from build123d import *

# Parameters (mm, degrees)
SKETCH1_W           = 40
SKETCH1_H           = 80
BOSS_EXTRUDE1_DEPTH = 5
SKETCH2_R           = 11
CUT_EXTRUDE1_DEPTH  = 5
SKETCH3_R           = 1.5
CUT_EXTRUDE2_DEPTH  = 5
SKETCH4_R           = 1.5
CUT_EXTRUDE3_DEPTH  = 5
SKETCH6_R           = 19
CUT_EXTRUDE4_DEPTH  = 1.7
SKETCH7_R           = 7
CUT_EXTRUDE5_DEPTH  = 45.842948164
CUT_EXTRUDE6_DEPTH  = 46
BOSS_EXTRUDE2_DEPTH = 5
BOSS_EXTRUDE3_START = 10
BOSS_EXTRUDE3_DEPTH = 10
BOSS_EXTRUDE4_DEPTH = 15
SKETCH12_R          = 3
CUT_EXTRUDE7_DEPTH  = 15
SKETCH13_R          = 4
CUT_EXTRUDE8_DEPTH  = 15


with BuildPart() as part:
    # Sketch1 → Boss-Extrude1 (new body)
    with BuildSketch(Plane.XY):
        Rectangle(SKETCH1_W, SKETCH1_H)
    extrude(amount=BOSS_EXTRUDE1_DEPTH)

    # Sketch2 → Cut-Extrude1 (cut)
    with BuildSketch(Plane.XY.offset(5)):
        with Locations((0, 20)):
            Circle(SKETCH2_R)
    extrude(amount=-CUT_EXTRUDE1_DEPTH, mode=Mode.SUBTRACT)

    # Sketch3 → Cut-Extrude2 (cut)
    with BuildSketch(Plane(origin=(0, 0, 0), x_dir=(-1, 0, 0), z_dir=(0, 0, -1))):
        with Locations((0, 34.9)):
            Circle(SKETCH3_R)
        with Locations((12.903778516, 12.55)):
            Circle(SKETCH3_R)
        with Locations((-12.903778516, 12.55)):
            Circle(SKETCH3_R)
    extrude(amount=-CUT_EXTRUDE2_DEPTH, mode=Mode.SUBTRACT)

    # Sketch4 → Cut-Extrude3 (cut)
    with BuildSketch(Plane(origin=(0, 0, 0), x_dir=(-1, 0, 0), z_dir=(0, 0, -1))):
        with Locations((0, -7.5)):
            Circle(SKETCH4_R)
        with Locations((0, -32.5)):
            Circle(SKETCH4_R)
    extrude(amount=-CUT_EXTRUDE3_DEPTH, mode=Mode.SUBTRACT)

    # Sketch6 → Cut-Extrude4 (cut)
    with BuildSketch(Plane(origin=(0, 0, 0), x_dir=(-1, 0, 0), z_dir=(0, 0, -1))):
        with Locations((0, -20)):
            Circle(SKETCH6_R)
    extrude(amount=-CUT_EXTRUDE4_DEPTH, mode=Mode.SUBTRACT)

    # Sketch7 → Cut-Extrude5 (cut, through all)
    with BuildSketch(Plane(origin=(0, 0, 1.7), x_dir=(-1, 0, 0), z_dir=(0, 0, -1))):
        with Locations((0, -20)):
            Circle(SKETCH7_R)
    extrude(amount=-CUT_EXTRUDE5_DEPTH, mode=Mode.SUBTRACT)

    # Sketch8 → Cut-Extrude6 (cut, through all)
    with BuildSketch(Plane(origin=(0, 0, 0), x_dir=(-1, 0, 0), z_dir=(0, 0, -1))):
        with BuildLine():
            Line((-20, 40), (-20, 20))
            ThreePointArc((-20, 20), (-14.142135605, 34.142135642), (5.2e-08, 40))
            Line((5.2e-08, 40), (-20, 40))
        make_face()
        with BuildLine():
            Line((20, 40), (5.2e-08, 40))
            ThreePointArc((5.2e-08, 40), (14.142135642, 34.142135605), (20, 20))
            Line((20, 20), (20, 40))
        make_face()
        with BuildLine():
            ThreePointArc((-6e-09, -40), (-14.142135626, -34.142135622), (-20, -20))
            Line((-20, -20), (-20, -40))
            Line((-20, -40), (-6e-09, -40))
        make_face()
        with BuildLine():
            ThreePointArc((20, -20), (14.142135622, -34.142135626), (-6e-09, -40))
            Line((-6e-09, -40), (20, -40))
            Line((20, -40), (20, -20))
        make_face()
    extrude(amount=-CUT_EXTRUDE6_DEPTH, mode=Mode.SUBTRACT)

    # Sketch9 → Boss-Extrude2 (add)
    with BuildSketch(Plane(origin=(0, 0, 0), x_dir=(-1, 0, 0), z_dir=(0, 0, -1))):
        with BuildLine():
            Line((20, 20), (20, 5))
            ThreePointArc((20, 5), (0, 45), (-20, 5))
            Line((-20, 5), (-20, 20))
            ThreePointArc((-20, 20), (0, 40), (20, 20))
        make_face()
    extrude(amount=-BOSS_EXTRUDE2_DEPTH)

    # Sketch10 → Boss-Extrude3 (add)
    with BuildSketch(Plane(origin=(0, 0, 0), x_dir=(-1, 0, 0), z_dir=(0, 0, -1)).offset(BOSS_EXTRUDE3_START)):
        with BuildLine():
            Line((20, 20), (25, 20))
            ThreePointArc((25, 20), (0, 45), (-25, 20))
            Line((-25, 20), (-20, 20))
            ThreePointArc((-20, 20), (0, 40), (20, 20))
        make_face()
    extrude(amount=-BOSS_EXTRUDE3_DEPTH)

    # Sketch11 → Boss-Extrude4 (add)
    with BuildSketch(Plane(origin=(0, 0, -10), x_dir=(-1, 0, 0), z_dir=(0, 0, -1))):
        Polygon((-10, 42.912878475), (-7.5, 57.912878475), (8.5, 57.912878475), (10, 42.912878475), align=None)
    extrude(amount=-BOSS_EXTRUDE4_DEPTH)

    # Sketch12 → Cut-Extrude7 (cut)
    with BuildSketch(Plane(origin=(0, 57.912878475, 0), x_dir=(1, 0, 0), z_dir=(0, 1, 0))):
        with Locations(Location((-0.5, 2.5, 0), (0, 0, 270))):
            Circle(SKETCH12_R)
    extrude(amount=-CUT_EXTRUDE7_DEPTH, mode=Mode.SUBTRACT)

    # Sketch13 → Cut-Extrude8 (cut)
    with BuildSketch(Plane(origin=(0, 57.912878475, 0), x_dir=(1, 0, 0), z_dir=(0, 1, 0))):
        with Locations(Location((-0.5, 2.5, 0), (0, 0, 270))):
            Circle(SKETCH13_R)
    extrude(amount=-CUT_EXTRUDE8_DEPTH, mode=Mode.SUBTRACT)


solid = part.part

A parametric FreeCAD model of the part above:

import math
import FreeCAD as App
import Part
import Sketcher
Q = App.Units.Quantity

doc = App.newDocument("Part")
params = doc.addObject("Spreadsheet::Sheet", "Params")
for row, (alias, value) in enumerate([
    ("sketch1_width", "40 mm"),
    ("sketch1_height", "80 mm"),
    ("pad1_length", "5 mm"),
    ("sketch2_diameter", "22 mm"),
    ("pocket1_length", "5 mm"),
    ("sketch3_diameter", "3 mm"),
    ("pocket2_length", "5 mm"),
    ("sketch4_diameter", "3 mm"),
    ("pocket3_length", "5 mm"),
    ("sketch5_diameter", "38 mm"),
    ("pocket4_length", "1.7 mm"),
    ("sketch6_diameter", "14 mm"),
    ("sketch7_radius", "20 mm"),
    ("sketch8_radius", "25 mm"),
    ("sketch8_radius2", "20 mm"),
    ("pad2_length", "5 mm"),
    ("sketch9_radius", "25 mm"),
    ("sketch9_radius2", "20 mm"),
    ("pad3_length", "10 mm"),
    ("sketch10_width", "20 mm"),
    ("sketch10_width2", "16 mm"),
    ("pad4_length", "15 mm"),
    ("sketch11_diameter", "6 mm"),
    ("pocket7_length", "15 mm"),
    ("sketch12_diameter", "8 mm"),
    ("pocket8_length", "15 mm"),
], start=1):
    params.set(f"A{row}", alias)
    params.set(f"B{row}", "=" + value)
    params.setAlias(f"B{row}", alias)

body = doc.addObject("PartDesign::Body", "Body")

# Sketch on XY plane
sketch1 = body.newObject("Sketcher::SketchObject", "Sketch")
sketch1.AttachmentSupport = (doc.getObject("XY_Plane"), [""])
sketch1.MapMode = "FlatFace"
sketch1.addGeometry([
    Part.LineSegment(App.Vector(-20, 40, 0), App.Vector(-20, -40, 0)),
    Part.LineSegment(App.Vector(-20, -40, 0), App.Vector(20, -40, 0)),
    Part.LineSegment(App.Vector(20, -40, 0), App.Vector(20, 40, 0)),
    Part.LineSegment(App.Vector(20, 40, 0), App.Vector(-20, 40, 0)),
], False)
sketch1.addConstraint([
    Sketcher.Constraint("Coincident", 0, 2, 1, 1),
    Sketcher.Constraint("Coincident", 1, 2, 2, 1),
    Sketcher.Constraint("Coincident", 2, 2, 3, 1),
    Sketcher.Constraint("Coincident", 3, 2, 0, 1),
    Sketcher.Constraint("Vertical", 0),
    Sketcher.Constraint("Horizontal", 1),
    Sketcher.Constraint("Vertical", 2),
    Sketcher.Constraint("Horizontal", 3),
    Sketcher.Constraint("Symmetric", 0, 2, 2, 2, -1, 1),
    Sketcher.Constraint("DistanceX", 1, 1, 1, 2, Q("40 mm")),
    Sketcher.Constraint("DistanceY", 0, 2, 0, 1, Q("80 mm")),
])
sketch1.setExpression("Constraints[9]", "Params.sketch1_width")
sketch1.setExpression("Constraints[10]", "Params.sketch1_height")
pad1 = body.newObject("PartDesign::Pad", "Pad")
pad1.Profile = sketch1
pad1.setExpression("Length", "Params.pad1_length")

# Sketch on XY plane
sketch2 = body.newObject("Sketcher::SketchObject", "Sketch001")
sketch2.AttachmentSupport = (doc.getObject("XY_Plane"), [""])
sketch2.MapMode = "FlatFace"
sketch2.AttachmentOffset = App.Placement(App.Vector(0, 0, 5), App.Rotation())
sketch2.addGeometry(Part.Circle(App.Vector(0, 20, 0), App.Vector(0, 0, 1), 11), False)
sketch2.addConstraint([
    Sketcher.Constraint("PointOnObject", 0, 3, -2),
    Sketcher.Constraint("Diameter", 0, Q("22 mm")),
    Sketcher.Constraint("DistanceY", -1, 1, 0, 3, Q("20 mm")),
])
sketch2.setExpression("Constraints[1]", "Params.sketch2_diameter")
pocket1 = body.newObject("PartDesign::Pocket", "Pocket")
pocket1.Profile = sketch2
pocket1.setExpression("Length", "Params.pocket1_length")

# Sketch on XY plane
sketch3 = body.newObject("Sketcher::SketchObject", "Sketch002")
sketch3.AttachmentSupport = (doc.getObject("XY_Plane"), [""])
sketch3.MapMode = "FlatFace"
sketch3.addGeometry([
    Part.Circle(App.Vector(0, 34.9, 0), App.Vector(0, 0, 1), 1.5),
    Part.Circle(App.Vector(-12.9, 12.6, 0), App.Vector(0, 0, 1), 1.5),
    Part.Circle(App.Vector(12.9, 12.6, 0), App.Vector(0, 0, 1), 1.5),
], False)
sketch3.addConstraint([
    Sketcher.Constraint("Equal", 0, 1),
    Sketcher.Constraint("Equal", 1, 2),
    Sketcher.Constraint("Symmetric", 1, 3, 2, 3, -2),
    Sketcher.Constraint("PointOnObject", 0, 3, -2),
    Sketcher.Constraint("Diameter", 0, Q("3 mm")),
    Sketcher.Constraint("DistanceY", -1, 1, 0, 3, Q("34.9 mm")),
    Sketcher.Constraint("DistanceY", -1, 1, 1, 3, Q("12.55 mm")),
    Sketcher.Constraint("DistanceX", 1, 3, -1, 1, Q("12.903779 mm")),
])
sketch3.setExpression("Constraints[4]", "Params.sketch3_diameter")
pocket2 = body.newObject("PartDesign::Pocket", "Pocket001")
pocket2.Profile = sketch3
pocket2.setExpression("Length", "Params.pocket2_length")
pocket2.Reversed = True

# Sketch on XY plane
sketch4 = body.newObject("Sketcher::SketchObject", "Sketch003")
sketch4.AttachmentSupport = (doc.getObject("XY_Plane"), [""])
sketch4.MapMode = "FlatFace"
sketch4.addGeometry([
    Part.Circle(App.Vector(0, -7.5, 0), App.Vector(0, 0, 1), 1.5),
    Part.Circle(App.Vector(0, -32.5, 0), App.Vector(0, 0, 1), 1.5),
], False)
sketch4.addConstraint([
    Sketcher.Constraint("Equal", 0, 1),
    Sketcher.Constraint("PointOnObject", 0, 3, -2),
    Sketcher.Constraint("PointOnObject", 1, 3, -2),
    Sketcher.Constraint("Diameter", 0, Q("3 mm")),
    Sketcher.Constraint("DistanceY", 1, 3, 0, 3, Q("25 mm")),
    Sketcher.Constraint("DistanceY", 0, 3, -1, 1, Q("7.5 mm")),
])
sketch4.setExpression("Constraints[3]", "Params.sketch4_diameter")
pocket3 = body.newObject("PartDesign::Pocket", "Pocket002")
pocket3.Profile = sketch4
pocket3.setExpression("Length", "Params.pocket3_length")
pocket3.Reversed = True

# Sketch on XY plane
sketch5 = body.newObject("Sketcher::SketchObject", "Sketch004")
sketch5.AttachmentSupport = (doc.getObject("XY_Plane"), [""])
sketch5.MapMode = "FlatFace"
sketch5.addGeometry(Part.Circle(App.Vector(0, -20, 0), App.Vector(0, 0, 1), 19), False)
sketch5.addConstraint([
    Sketcher.Constraint("PointOnObject", 0, 3, -2),
    Sketcher.Constraint("Diameter", 0, Q("38 mm")),
    Sketcher.Constraint("DistanceY", 0, 3, -1, 1, Q("20 mm")),
])
sketch5.setExpression("Constraints[1]", "Params.sketch5_diameter")
pocket4 = body.newObject("PartDesign::Pocket", "Pocket003")
pocket4.Profile = sketch5
pocket4.setExpression("Length", "Params.pocket4_length")
pocket4.Reversed = True

# Sketch on XY plane
sketch6 = body.newObject("Sketcher::SketchObject", "Sketch005")
sketch6.AttachmentSupport = (doc.getObject("XY_Plane"), [""])
sketch6.MapMode = "FlatFace"
sketch6.AttachmentOffset = App.Placement(App.Vector(0, 0, 1.7), App.Rotation())
sketch6.addGeometry(Part.Circle(App.Vector(0, -20, 0), App.Vector(0, 0, 1), 7), False)
sketch6.addConstraint([
    Sketcher.Constraint("PointOnObject", 0, 3, -2),
    Sketcher.Constraint("Diameter", 0, Q("14 mm")),
    Sketcher.Constraint("DistanceY", 0, 3, -1, 1, Q("20 mm")),
])
sketch6.setExpression("Constraints[1]", "Params.sketch6_diameter")
pocket5 = body.newObject("PartDesign::Pocket", "Pocket004")
pocket5.Profile = sketch6
pocket5.Type = "ThroughAll"
pocket5.Reversed = True

# Sketch on XY plane
sketch7 = body.newObject("Sketcher::SketchObject", "Sketch006")
sketch7.AttachmentSupport = (doc.getObject("XY_Plane"), [""])
sketch7.MapMode = "FlatFace"
sketch7.addGeometry([
    Part.LineSegment(App.Vector(20, 40, 0), App.Vector(20, 20, 0)),  # 0
    Part.ArcOfCircle(Part.Circle(App.Vector(0, 20, 0), App.Vector(0, 0, 1), 20), math.radians(0), math.radians(90)),  # 1
    Part.LineSegment(App.Vector(0, 40, 0), App.Vector(20, 40, 0)),  # 2
    Part.LineSegment(App.Vector(-20, 40, 0), App.Vector(0, 40, 0)),  # 3
    Part.ArcOfCircle(Part.Circle(App.Vector(0, 20, 0), App.Vector(0, 0, 1), 20), math.radians(90), math.radians(180)),  # 4
    Part.LineSegment(App.Vector(-20, 20, 0), App.Vector(-20, 40, 0)),  # 5
    Part.ArcOfCircle(Part.Circle(App.Vector(0, -20, 0), App.Vector(0, 0, 1), 20), math.radians(-90), math.radians(0)),  # 6
    Part.LineSegment(App.Vector(20, -20, 0), App.Vector(20, -40, 0)),  # 7
    Part.LineSegment(App.Vector(20, -40, 0), App.Vector(0, -40, 0)),  # 8
    Part.ArcOfCircle(Part.Circle(App.Vector(0, -20, 0), App.Vector(0, 0, 1), 20), math.radians(180), math.radians(270)),  # 9
    Part.LineSegment(App.Vector(0, -40, 0), App.Vector(-20, -40, 0)),  # 10
    Part.LineSegment(App.Vector(-20, -40, 0), App.Vector(-20, -20, 0)),  # 11
], False)
sketch7.addConstraint([
    Sketcher.Constraint("Tangent", 0, 2, 1, 1),
    Sketcher.Constraint("Tangent", 1, 2, 2, 1),
    Sketcher.Constraint("Coincident", 2, 2, 0, 1),
    Sketcher.Constraint("Tangent", 3, 2, 4, 1),
    Sketcher.Constraint("Tangent", 4, 2, 5, 1),
    Sketcher.Constraint("Coincident", 5, 2, 3, 1),
    Sketcher.Constraint("Tangent", 6, 2, 7, 1),
    Sketcher.Constraint("Coincident", 7, 2, 8, 1),
    Sketcher.Constraint("Tangent", 8, 2, 6, 1),
    Sketcher.Constraint("Tangent", 9, 2, 10, 1),
    Sketcher.Constraint("Coincident", 10, 2, 11, 1),
    Sketcher.Constraint("Tangent", 11, 2, 9, 1),
    Sketcher.Constraint("Vertical", 0),
    Sketcher.Constraint("Horizontal", 2),
    Sketcher.Constraint("Horizontal", 3),
    Sketcher.Constraint("Vertical", 5),
    Sketcher.Constraint("Vertical", 7),
    Sketcher.Constraint("Horizontal", 8),
    Sketcher.Constraint("Horizontal", 10),
    Sketcher.Constraint("Vertical", 11),
    Sketcher.Constraint("Coincident", 4, 3, 1, 3),
    Sketcher.Constraint("Coincident", 9, 3, 6, 3),
    Sketcher.Constraint("Equal", 1, 4),
    Sketcher.Constraint("Equal", 4, 6),
    Sketcher.Constraint("Equal", 6, 9),
    Sketcher.Constraint("Symmetric", 1, 3, 6, 3, -1, 1),
    Sketcher.Constraint("PointOnObject", 1, 3, -2),
    Sketcher.Constraint("Radius", 1, Q("20 mm")),
    Sketcher.Constraint("DistanceY", -1, 1, 1, 3, Q("20 mm")),
])
sketch7.setExpression("Constraints[27]", "Params.sketch7_radius")
pocket6 = body.newObject("PartDesign::Pocket", "Pocket005")
pocket6.Profile = sketch7
pocket6.Type = "ThroughAll"
pocket6.Reversed = True

# Sketch on XY plane
sketch8 = body.newObject("Sketcher::SketchObject", "Sketch007")
sketch8.AttachmentSupport = (doc.getObject("XY_Plane"), [""])
sketch8.MapMode = "FlatFace"
sketch8.addGeometry([
    Part.LineSegment(App.Vector(-20, 20, 0), App.Vector(-20, 5, 0)),
    Part.ArcOfCircle(Part.Circle(App.Vector(0, 20, 0), App.Vector(0, 0, 1), 25), math.radians(-37), math.radians(217)),
    Part.LineSegment(App.Vector(20, 5, 0), App.Vector(20, 20, 0)),
    Part.ArcOfCircle(Part.Circle(App.Vector(0, 20, 0), App.Vector(0, 0, 1), 20), math.radians(0), math.radians(180)),
], False)
sketch8.addConstraint([
    Sketcher.Constraint("Coincident", 0, 2, 1, 2),
    Sketcher.Constraint("Coincident", 1, 1, 2, 1),
    Sketcher.Constraint("Tangent", 2, 2, 3, 1),
    Sketcher.Constraint("Tangent", 3, 2, 0, 1),
    Sketcher.Constraint("Vertical", 0),
    Sketcher.Constraint("Vertical", 2),
    Sketcher.Constraint("Coincident", 3, 3, 1, 3),
    Sketcher.Constraint("PointOnObject", 1, 3, -2),
    Sketcher.Constraint("Radius", 1, Q("25 mm")),
    Sketcher.Constraint("Radius", 3, Q("20 mm")),
    Sketcher.Constraint("DistanceY", -1, 1, 1, 3, Q("20 mm")),
])
sketch8.setExpression("Constraints[8]", "Params.sketch8_radius")
sketch8.setExpression("Constraints[9]", "Params.sketch8_radius2")
pad2 = body.newObject("PartDesign::Pad", "Pad001")
pad2.Profile = sketch8
pad2.setExpression("Length", "Params.pad2_length")

# Sketch on XY plane
sketch9 = body.newObject("Sketcher::SketchObject", "Sketch008")
sketch9.AttachmentSupport = (doc.getObject("XY_Plane"), [""])
sketch9.MapMode = "FlatFace"
sketch9.AttachmentOffset = App.Placement(App.Vector(0, 0, -10), App.Rotation())
sketch9.addGeometry([
    Part.LineSegment(App.Vector(-20, 20, 0), App.Vector(-25, 20, 0)),
    Part.ArcOfCircle(Part.Circle(App.Vector(0, 20, 0), App.Vector(0, 0, 1), 25), math.radians(0), math.radians(180)),
    Part.LineSegment(App.Vector(25, 20, 0), App.Vector(20, 20, 0)),
    Part.ArcOfCircle(Part.Circle(App.Vector(0, 20, 0), App.Vector(0, 0, 1), 20), math.radians(0), math.radians(180)),
], False)
sketch9.addConstraint([
    Sketcher.Constraint("Coincident", 0, 2, 1, 2),
    Sketcher.Constraint("Coincident", 1, 1, 2, 1),
    Sketcher.Constraint("Coincident", 2, 2, 3, 1),
    Sketcher.Constraint("Coincident", 3, 2, 0, 1),
    Sketcher.Constraint("Horizontal", 0),
    Sketcher.Constraint("Horizontal", 2),
    Sketcher.Constraint("Coincident", 3, 3, 1, 3),
    Sketcher.Constraint("Symmetric", 0, 2, 1, 1, -2),
    Sketcher.Constraint("Horizontal", 3, 3, 0, 2),
    Sketcher.Constraint("Radius", 1, Q("25 mm")),
    Sketcher.Constraint("Radius", 3, Q("20 mm")),
    Sketcher.Constraint("DistanceY", -1, 1, 1, 3, Q("20 mm")),
])
sketch9.setExpression("Constraints[9]", "Params.sketch9_radius")
sketch9.setExpression("Constraints[10]", "Params.sketch9_radius2")
pad3 = body.newObject("PartDesign::Pad", "Pad002")
pad3.Profile = sketch9
pad3.setExpression("Length", "Params.pad3_length")

# Sketch on XY plane
sketch10 = body.newObject("Sketcher::SketchObject", "Sketch009")
sketch10.AttachmentSupport = (doc.getObject("XY_Plane"), [""])
sketch10.MapMode = "FlatFace"
sketch10.AttachmentOffset = App.Placement(App.Vector(0, 0, -10), App.Rotation())
sketch10.addGeometry([
    Part.LineSegment(App.Vector(8, 58, 0), App.Vector(10, 43, 0)),
    Part.LineSegment(App.Vector(10, 43, 0), App.Vector(-10, 43, 0)),
    Part.LineSegment(App.Vector(-10, 43, 0), App.Vector(-8, 58, 0)),
    Part.LineSegment(App.Vector(-8, 58, 0), App.Vector(8, 58, 0)),
], False)
sketch10.addConstraint([
    Sketcher.Constraint("Coincident", 0, 2, 1, 1),
    Sketcher.Constraint("Coincident", 1, 2, 2, 1),
    Sketcher.Constraint("Coincident", 2, 2, 3, 1),
    Sketcher.Constraint("Coincident", 3, 2, 0, 1),
    Sketcher.Constraint("Horizontal", 1),
    Sketcher.Constraint("Horizontal", 3),
    Sketcher.Constraint("DistanceX", 1, 2, 1, 1, Q("20 mm")),
    Sketcher.Constraint("DistanceX", 3, 1, 3, 2, Q("16 mm")),
    Sketcher.Constraint("DistanceX", -1, 1, 0, 2, Q("10 mm")),
    Sketcher.Constraint("DistanceY", 1, 2, 2, 2, Q("15 mm")),
    Sketcher.Constraint("DistanceX", 2, 2, -1, 1, Q("8.5 mm")),
    Sketcher.Constraint("DistanceY", -1, 1, 0, 2, Q("42.912878 mm")),
])
sketch10.setExpression("Constraints[6]", "Params.sketch10_width")
sketch10.setExpression("Constraints[7]", "Params.sketch10_width2")
pad4 = body.newObject("PartDesign::Pad", "Pad003")
pad4.Profile = sketch10
pad4.setExpression("Length", "Params.pad4_length")

# Sketch on XZ plane
sketch11 = body.newObject("Sketcher::SketchObject", "Sketch010")
sketch11.AttachmentSupport = (doc.getObject("XZ_Plane"), [""])
sketch11.MapMode = "FlatFace"
sketch11.AttachmentOffset = App.Placement(App.Vector(0, 0, -57.912878), App.Rotation())
sketch11.addGeometry(Part.Circle(App.Vector(-0.5, -2.5, 0), App.Vector(0, 0, 1), 3), False)
sketch11.addConstraint([
    Sketcher.Constraint("Diameter", 0, Q("6 mm")),
    Sketcher.Constraint("DistanceX", 0, 3, -1, 1, Q("0.5 mm")),
    Sketcher.Constraint("DistanceY", 0, 3, -1, 1, Q("2.5 mm")),
])
sketch11.setExpression("Constraints[0]", "Params.sketch11_diameter")
pocket7 = body.newObject("PartDesign::Pocket", "Pocket006")
pocket7.Profile = sketch11
pocket7.setExpression("Length", "Params.pocket7_length")
pocket7.Reversed = True

# Sketch on XZ plane
sketch12 = body.newObject("Sketcher::SketchObject", "Sketch011")
sketch12.AttachmentSupport = (doc.getObject("XZ_Plane"), [""])
sketch12.MapMode = "FlatFace"
sketch12.AttachmentOffset = App.Placement(App.Vector(0, 0, -57.912878), App.Rotation())
sketch12.addGeometry(Part.Circle(App.Vector(-0.5, -2.5, 0), App.Vector(0, 0, 1), 4), False)
sketch12.addConstraint([
    Sketcher.Constraint("Diameter", 0, Q("8 mm")),
    Sketcher.Constraint("DistanceX", 0, 3, -1, 1, Q("0.5 mm")),
    Sketcher.Constraint("DistanceY", 0, 3, -1, 1, Q("2.5 mm")),
])
sketch12.setExpression("Constraints[0]", "Params.sketch12_diameter")
pocket8 = body.newObject("PartDesign::Pocket", "Pocket007")
pocket8.Profile = sketch12
pocket8.setExpression("Length", "Params.pocket8_length")
pocket8.Reversed = True

doc.recompute()
